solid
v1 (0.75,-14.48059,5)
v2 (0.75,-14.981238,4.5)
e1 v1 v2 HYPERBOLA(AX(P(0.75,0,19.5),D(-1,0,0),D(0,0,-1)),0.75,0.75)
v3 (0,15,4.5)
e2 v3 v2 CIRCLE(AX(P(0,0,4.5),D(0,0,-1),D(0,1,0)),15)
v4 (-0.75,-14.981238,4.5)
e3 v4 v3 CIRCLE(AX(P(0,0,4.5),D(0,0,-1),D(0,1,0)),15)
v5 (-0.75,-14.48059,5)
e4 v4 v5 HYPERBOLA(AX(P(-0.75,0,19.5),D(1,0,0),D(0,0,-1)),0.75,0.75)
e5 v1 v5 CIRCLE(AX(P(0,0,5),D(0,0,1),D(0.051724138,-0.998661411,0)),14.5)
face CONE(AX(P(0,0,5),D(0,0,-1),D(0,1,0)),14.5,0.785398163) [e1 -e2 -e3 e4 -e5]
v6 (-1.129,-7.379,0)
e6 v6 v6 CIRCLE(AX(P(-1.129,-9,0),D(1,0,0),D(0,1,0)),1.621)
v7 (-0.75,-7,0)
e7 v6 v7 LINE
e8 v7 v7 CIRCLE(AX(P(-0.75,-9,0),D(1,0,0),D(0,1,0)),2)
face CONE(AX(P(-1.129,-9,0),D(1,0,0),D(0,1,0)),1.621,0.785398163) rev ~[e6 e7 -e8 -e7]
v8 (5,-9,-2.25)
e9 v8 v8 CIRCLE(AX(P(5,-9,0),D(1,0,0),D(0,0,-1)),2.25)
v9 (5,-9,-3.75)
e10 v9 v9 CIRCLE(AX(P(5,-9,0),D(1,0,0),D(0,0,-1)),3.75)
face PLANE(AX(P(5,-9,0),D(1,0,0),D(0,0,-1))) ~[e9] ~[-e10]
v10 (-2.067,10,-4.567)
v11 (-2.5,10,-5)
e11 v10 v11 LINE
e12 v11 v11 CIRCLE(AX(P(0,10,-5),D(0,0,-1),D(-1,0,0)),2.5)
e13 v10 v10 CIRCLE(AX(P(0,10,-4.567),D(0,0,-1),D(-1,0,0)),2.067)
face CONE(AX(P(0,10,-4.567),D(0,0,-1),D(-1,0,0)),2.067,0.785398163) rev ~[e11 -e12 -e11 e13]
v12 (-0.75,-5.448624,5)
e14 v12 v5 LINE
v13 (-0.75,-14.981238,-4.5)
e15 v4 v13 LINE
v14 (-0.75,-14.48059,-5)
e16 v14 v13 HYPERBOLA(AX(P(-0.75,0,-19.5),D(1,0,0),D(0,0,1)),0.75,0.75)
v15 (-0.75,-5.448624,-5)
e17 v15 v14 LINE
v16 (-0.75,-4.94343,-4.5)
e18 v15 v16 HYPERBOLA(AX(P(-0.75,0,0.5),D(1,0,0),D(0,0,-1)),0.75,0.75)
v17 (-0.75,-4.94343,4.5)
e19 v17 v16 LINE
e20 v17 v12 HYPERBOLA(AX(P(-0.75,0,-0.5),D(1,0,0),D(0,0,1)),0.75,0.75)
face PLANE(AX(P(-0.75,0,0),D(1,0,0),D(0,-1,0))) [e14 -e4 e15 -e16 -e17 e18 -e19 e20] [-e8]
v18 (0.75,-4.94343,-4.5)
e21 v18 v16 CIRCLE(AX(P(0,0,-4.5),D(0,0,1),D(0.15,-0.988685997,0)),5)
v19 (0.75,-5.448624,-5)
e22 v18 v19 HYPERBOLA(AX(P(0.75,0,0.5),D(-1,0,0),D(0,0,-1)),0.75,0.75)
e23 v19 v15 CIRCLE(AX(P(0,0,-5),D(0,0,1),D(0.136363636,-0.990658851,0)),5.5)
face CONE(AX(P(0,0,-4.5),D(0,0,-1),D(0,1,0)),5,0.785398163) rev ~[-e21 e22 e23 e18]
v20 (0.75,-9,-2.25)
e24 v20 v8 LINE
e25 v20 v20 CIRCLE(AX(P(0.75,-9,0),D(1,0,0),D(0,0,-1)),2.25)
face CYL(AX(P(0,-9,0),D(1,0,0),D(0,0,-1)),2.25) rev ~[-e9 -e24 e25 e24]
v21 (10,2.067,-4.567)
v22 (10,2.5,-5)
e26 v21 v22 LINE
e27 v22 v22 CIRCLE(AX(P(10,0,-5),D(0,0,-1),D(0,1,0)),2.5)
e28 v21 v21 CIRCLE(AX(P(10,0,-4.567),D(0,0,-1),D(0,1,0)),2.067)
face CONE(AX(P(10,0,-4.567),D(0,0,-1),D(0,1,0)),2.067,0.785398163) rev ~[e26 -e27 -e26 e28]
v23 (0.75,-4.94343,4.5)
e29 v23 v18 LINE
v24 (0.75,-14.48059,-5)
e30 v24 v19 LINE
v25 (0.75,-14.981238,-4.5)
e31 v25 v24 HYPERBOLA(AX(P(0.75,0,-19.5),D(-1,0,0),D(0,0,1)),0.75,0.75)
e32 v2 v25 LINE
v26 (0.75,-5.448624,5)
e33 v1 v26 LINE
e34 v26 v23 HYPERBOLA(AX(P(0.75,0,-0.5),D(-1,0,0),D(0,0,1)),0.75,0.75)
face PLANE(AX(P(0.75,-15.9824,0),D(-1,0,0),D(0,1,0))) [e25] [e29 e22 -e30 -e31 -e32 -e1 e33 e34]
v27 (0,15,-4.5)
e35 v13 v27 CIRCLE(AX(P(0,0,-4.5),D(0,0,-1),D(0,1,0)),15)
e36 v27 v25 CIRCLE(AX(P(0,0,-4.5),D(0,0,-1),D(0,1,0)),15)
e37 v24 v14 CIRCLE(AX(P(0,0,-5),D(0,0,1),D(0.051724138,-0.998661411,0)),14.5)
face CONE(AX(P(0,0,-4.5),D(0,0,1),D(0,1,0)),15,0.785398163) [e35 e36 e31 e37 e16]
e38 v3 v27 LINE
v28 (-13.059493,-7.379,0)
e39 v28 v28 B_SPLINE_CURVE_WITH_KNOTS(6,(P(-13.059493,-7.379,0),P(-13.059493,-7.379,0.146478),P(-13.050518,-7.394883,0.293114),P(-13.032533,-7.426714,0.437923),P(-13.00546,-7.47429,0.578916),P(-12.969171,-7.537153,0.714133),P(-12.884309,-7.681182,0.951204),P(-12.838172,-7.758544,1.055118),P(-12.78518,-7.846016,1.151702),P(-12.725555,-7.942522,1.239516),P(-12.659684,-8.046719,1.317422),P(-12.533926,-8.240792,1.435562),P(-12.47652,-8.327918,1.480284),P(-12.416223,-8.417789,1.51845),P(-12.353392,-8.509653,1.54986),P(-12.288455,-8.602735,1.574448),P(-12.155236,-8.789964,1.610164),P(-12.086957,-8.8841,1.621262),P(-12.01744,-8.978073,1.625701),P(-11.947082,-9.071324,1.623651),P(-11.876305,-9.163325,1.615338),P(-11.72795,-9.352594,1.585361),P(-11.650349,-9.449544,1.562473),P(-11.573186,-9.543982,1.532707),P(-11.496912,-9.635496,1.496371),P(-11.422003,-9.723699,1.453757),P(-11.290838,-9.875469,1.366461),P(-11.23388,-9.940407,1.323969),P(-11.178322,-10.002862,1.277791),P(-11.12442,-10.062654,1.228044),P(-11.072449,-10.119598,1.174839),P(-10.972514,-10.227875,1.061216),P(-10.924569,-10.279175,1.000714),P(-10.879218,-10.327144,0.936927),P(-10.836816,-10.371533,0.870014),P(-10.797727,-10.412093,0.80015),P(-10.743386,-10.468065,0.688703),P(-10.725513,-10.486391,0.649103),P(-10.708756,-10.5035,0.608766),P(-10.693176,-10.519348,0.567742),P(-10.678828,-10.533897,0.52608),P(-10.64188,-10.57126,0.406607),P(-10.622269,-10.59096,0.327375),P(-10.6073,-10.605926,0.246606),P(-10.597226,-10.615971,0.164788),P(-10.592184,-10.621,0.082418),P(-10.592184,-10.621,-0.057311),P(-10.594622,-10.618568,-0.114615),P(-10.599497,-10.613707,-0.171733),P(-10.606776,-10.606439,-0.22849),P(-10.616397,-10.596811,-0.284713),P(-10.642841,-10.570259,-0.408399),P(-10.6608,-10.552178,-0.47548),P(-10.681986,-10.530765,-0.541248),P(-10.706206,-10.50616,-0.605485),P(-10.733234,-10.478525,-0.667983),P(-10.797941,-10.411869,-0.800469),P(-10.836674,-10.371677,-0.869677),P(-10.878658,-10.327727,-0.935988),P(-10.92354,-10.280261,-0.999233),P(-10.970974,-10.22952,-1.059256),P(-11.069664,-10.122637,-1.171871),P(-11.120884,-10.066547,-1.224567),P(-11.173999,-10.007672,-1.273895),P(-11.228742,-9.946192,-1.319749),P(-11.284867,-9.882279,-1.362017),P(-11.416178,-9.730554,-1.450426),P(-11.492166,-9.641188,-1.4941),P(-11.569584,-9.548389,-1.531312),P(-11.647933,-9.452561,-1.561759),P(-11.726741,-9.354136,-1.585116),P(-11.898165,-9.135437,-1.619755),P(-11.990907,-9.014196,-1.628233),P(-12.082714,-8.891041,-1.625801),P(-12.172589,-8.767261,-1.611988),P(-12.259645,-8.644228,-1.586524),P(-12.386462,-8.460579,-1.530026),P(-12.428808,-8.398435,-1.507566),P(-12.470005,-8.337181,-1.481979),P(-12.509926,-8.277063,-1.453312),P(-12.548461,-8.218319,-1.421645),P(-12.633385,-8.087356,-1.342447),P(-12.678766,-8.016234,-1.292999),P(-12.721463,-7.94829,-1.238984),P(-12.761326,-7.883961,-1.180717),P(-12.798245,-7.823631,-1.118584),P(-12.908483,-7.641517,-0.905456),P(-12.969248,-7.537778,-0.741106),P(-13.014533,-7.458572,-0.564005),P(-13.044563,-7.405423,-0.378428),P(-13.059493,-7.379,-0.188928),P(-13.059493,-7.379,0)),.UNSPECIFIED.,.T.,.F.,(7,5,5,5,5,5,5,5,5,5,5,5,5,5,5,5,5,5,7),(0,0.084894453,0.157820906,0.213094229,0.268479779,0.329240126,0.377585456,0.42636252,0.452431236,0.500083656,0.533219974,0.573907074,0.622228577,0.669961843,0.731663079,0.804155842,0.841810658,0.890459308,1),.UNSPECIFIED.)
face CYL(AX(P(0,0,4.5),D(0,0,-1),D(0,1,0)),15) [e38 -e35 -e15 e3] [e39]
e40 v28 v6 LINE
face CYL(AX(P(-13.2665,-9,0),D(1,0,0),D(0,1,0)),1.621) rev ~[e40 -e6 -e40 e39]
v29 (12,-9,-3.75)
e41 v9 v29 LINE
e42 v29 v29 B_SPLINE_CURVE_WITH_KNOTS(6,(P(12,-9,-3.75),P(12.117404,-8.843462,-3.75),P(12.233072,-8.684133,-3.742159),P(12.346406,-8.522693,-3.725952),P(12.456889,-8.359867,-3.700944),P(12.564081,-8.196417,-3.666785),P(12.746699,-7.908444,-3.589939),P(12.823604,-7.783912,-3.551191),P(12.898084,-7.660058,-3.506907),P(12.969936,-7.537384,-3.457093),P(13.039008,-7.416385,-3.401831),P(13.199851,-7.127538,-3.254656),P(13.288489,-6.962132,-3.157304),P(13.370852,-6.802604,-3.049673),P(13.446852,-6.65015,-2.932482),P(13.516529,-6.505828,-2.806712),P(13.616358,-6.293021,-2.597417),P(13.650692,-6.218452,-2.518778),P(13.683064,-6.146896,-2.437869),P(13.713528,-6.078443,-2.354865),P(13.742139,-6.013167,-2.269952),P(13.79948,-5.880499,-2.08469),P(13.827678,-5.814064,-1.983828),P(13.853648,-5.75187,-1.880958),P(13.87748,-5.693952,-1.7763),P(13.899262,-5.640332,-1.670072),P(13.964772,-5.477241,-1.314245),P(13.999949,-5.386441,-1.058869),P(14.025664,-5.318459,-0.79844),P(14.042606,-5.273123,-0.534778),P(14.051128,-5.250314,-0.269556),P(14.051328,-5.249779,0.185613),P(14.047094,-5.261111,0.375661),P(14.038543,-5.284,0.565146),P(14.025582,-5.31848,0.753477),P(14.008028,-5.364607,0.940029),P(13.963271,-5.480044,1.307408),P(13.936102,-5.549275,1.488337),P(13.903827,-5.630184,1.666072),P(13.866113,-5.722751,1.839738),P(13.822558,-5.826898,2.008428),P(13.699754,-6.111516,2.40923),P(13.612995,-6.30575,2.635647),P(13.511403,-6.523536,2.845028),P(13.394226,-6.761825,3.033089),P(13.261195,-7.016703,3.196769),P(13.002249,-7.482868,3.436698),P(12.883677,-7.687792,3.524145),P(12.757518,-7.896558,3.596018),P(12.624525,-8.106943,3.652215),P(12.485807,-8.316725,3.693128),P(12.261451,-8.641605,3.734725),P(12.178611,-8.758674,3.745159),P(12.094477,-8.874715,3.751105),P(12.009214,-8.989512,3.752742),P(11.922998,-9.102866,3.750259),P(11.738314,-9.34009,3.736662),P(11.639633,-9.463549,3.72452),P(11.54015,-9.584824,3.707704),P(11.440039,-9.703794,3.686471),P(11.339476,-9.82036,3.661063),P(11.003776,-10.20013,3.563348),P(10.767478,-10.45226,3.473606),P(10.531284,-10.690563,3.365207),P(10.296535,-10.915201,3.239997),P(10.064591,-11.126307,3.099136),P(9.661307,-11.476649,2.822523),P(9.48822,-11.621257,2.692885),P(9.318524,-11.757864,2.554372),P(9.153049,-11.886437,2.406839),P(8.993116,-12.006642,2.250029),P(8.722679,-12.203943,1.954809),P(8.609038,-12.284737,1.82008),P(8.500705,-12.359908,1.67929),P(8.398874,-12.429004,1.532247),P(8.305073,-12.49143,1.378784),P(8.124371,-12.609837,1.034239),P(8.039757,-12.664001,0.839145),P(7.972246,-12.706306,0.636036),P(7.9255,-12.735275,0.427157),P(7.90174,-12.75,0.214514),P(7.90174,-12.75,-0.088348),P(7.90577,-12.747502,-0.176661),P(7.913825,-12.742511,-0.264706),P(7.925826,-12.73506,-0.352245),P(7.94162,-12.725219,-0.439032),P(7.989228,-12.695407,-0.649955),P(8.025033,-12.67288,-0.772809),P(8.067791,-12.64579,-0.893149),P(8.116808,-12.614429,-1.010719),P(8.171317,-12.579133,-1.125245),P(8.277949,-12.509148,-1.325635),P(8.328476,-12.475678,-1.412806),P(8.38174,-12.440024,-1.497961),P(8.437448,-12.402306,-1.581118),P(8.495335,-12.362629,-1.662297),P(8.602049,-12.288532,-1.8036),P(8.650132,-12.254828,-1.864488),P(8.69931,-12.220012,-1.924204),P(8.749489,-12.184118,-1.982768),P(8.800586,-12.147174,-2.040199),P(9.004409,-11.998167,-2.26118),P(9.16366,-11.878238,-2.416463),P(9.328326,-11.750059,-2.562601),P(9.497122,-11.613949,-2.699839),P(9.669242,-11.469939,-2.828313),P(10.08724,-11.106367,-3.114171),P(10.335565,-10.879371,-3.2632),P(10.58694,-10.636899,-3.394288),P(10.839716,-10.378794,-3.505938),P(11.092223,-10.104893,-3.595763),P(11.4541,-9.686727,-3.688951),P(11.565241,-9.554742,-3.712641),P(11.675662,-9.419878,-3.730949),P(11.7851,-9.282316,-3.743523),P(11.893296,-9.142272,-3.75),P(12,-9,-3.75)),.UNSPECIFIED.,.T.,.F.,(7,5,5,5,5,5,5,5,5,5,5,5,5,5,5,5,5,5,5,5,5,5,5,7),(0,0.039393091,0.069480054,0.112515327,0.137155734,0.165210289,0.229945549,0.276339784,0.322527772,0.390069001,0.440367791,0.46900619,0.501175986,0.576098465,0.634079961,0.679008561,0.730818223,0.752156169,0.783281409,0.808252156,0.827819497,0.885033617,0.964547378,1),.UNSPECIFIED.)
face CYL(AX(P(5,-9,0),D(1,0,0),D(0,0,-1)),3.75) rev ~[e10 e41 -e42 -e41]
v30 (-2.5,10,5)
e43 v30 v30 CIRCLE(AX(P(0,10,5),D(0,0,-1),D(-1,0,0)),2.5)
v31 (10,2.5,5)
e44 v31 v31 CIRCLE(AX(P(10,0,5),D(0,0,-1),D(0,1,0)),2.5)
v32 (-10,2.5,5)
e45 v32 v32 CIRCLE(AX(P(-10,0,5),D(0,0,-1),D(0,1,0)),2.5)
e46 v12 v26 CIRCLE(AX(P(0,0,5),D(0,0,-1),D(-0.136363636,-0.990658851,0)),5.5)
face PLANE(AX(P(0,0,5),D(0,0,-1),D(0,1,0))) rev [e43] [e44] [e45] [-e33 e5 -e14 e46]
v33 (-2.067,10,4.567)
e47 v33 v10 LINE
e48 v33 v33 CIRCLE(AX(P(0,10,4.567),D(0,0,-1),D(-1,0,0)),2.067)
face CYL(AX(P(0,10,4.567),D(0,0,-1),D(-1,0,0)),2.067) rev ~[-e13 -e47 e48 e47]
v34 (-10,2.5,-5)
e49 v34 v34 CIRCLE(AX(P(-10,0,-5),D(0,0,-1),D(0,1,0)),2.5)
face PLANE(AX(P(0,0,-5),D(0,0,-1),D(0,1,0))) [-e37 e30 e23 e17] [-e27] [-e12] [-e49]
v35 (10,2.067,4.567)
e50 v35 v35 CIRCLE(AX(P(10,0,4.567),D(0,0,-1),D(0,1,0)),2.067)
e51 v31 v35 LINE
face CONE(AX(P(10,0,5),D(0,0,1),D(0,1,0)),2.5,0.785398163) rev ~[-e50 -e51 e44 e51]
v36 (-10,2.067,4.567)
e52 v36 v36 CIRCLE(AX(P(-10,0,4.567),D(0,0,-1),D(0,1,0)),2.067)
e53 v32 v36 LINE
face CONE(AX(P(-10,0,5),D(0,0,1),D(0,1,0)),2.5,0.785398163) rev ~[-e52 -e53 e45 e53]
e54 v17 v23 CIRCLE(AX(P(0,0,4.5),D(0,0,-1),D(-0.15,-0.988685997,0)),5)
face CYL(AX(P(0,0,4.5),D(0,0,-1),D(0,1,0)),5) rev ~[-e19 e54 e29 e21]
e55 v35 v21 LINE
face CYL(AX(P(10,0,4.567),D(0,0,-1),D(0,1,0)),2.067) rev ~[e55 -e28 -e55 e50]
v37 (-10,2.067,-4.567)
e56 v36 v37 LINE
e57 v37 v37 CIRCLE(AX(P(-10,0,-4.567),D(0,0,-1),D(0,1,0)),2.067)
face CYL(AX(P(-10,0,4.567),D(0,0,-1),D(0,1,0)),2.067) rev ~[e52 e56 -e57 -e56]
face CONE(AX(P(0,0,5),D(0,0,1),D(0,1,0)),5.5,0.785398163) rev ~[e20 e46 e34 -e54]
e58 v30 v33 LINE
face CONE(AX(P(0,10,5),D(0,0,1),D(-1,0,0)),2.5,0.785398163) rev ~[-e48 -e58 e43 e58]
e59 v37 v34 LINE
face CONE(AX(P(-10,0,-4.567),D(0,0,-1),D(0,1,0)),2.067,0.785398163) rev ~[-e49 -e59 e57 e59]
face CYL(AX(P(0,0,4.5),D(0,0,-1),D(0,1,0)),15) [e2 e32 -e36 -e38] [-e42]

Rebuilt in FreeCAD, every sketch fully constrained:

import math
import FreeCAD as App
import Part
import Sketcher

V = App.Vector
Q = App.Units.Quantity


def add_polygon(sketch, points):
    """Adds a closed chain of lines whose ends are joined by coincident constraints."""
    first, n = sketch.GeometryCount, len(points)
    for a, b in zip(points, points[1:] + points[:1]):
        sketch.addGeometry(Part.LineSegment(App.Vector(*a, 0), App.Vector(*b, 0)), False)
    for i in range(n):
        sketch.addConstraint(Sketcher.Constraint("Coincident", first + i, 2, first + (i + 1) % n, 1))

doc = App.newDocument("Part")
body = doc.addObject("PartDesign::Body", "Body")

# Sketch on YZ plane
sketch1 = body.newObject("Sketcher::SketchObject", "Sketch")
sketch1.AttachmentSupport = (doc.getObject("YZ_Plane"), [""])
sketch1.MapMode = "FlatFace"
add_polygon(sketch1, [(0, 5), (0, -5), (14.5, -5), (15, -4.5), (15, 4.5), (14.5, 5)])  # lines 0-5
sketch1.addConstraint(Sketcher.Constraint("Vertical", 0))
sketch1.addConstraint(Sketcher.Constraint("Horizontal", 1))
sketch1.addConstraint(Sketcher.Constraint("Vertical", 3))
sketch1.addConstraint(Sketcher.Constraint("Horizontal", 5))
sketch1.addConstraint(Sketcher.Constraint("Symmetric", 0, 2, 5, 2, -1, 1))
sketch1.addConstraint(Sketcher.Constraint("Perpendicular", 2, 4))
sketch1.addConstraint(Sketcher.Constraint("Vertical", 1, 2, 4, 2))
sketch1.addConstraint(Sketcher.Constraint("Equal", 2, 4))
sketch1.addConstraint(Sketcher.Constraint("DistanceY", 0, 2, 0, 1, Q("10 mm")))
sketch1.addConstraint(Sketcher.Constraint("DistanceY", 3, 1, 3, 2, Q("9 mm")))
sketch1.addConstraint(Sketcher.Constraint("DistanceX", 1, 1, 1, 2, Q("14.5 mm")))
revolution = body.newObject("PartDesign::Revolution", "Revolution")
revolution.Profile = sketch1
revolution.ReferenceAxis = (sketch1, ["V_Axis"])
revolution.Angle = 360

# Sketch on YZ plane
sketch2 = body.newObject("Sketcher::SketchObject", "Sketch001")
sketch2.AttachmentSupport = (doc.getObject("YZ_Plane"), [""])
sketch2.MapMode = "FlatFace"
add_polygon(sketch2, [(0, 5), (0, -5), (5.5, -5), (5, -4.5), (5, 4.5), (5.5, 5)])  # lines 0-5
sketch2.addConstraint(Sketcher.Constraint("Vertical", 0))
sketch2.addConstraint(Sketcher.Constraint("Horizontal", 1))
sketch2.addConstraint(Sketcher.Constraint("Vertical", 3))
sketch2.addConstraint(Sketcher.Constraint("Horizontal", 5))
sketch2.addConstraint(Sketcher.Constraint("Symmetric", 0, 2, 5, 2, -1, 1))
sketch2.addConstraint(Sketcher.Constraint("Perpendicular", 2, 4))
sketch2.addConstraint(Sketcher.Constraint("Vertical", 1, 2, 4, 2))
sketch2.addConstraint(Sketcher.Constraint("Equal", 2, 4))
sketch2.addConstraint(Sketcher.Constraint("DistanceY", 0, 2, 0, 1, Q("10 mm")))
sketch2.addConstraint(Sketcher.Constraint("DistanceY", 3, 1, 3, 2, Q("9 mm")))
sketch2.addConstraint(Sketcher.Constraint("DistanceX", 1, 1, 1, 2, Q("5.5 mm")))
groove = body.newObject("PartDesign::Groove", "Groove")
groove.Profile = sketch2
groove.ReferenceAxis = (sketch2, ["V_Axis"])
groove.Angle = 360

# Sketch on XY plane
sketch3 = body.newObject("Sketcher::SketchObject", "Sketch002")
sketch3.AttachmentSupport = (doc.getObject("XY_Plane"), [""])
sketch3.MapMode = "FlatFace"
sketch3.addGeometry(Part.LineSegment(V(-0.8, 0, 0), V(-0.8, -16, 0)), False)
sketch3.addGeometry(Part.ArcOfCircle(Part.Circle(V(0, 0, 0), V(0, 0, 1), 16), math.radians(-92.69), math.radians(-87.31)), False)
sketch3.addGeometry(Part.LineSegment(V(0.8, -16, 0), V(0.8, 0, 0)), False)
sketch3.addGeometry(Part.LineSegment(V(0.8, 0, 0), V(-0.8, 0, 0)), False)
sketch3.addConstraint(Sketcher.Constraint("Coincident", 0, 2, 1, 1))
sketch3.addConstraint(Sketcher.Constraint("Coincident", 1, 2, 2, 1))
sketch3.addConstraint(Sketcher.Constraint("Coincident", 2, 2, 3, 1))
sketch3.addConstraint(Sketcher.Constraint("Coincident", 3, 2, 0, 1))
sketch3.addConstraint(Sketcher.Constraint("Vertical", 0))
sketch3.addConstraint(Sketcher.Constraint("Vertical", 2))
sketch3.addConstraint(Sketcher.Constraint("Horizontal", 3))
sketch3.addConstraint(Sketcher.Constraint("Coincident", 1, 3, -1, 1))
sketch3.addConstraint(Sketcher.Constraint("Symmetric", 2, 2, 3, 2, -1, 1))
sketch3.addConstraint(Sketcher.Constraint("Radius", 1, Q("16 mm")))
sketch3.addConstraint(Sketcher.Constraint("DistanceX", 3, 2, 3, 1, Q("1.5 mm")))
pocket1 = body.newObject("PartDesign::Pocket", "Pocket")
pocket1.Profile = sketch3
pocket1.Length = 10
pocket1.Midplane = True

# Sketch on YZ plane
sketch4 = body.newObject("Sketcher::SketchObject", "Sketch003")
sketch4.AttachmentSupport = (doc.getObject("YZ_Plane"), [""])
sketch4.MapMode = "FlatFace"
sketch4.AttachmentOffset = App.Placement(V(0, 0, 10), App.Rotation())
add_polygon(sketch4, [(0, 5), (0, -5), (2.5, -5), (2.1, -4.6), (2.1, 4.6), (2.5, 5)])  # lines 0-5
sketch4.addConstraint(Sketcher.Constraint("Vertical", 0))
sketch4.addConstraint(Sketcher.Constraint("Horizontal", 1))
sketch4.addConstraint(Sketcher.Constraint("Vertical", 3))
sketch4.addConstraint(Sketcher.Constraint("Horizontal", 5))
sketch4.addConstraint(Sketcher.Constraint("Symmetric", 0, 2, 5, 2, -1, 1))
sketch4.addConstraint(Sketcher.Constraint("Perpendicular", 2, 4))
sketch4.addConstraint(Sketcher.Constraint("Vertical", 1, 2, 4, 2))
sketch4.addConstraint(Sketcher.Constraint("Equal", 2, 4))
sketch4.addConstraint(Sketcher.Constraint("DistanceY", 0, 2, 0, 1, Q("10 mm")))
sketch4.addConstraint(Sketcher.Constraint("DistanceX", 1, 1, 1, 2, Q("2.5 mm")))
sketch4.addConstraint(Sketcher.Constraint("DistanceY", 3, 1, 3, 2, Q("9.134 mm")))
groove2 = body.newObject("PartDesign::Groove", "Groove001")
groove2.Profile = sketch4
groove2.ReferenceAxis = (sketch4, ["V_Axis"])
groove2.Angle = 360

# Sketch on YZ plane
sketch5 = body.newObject("Sketcher::SketchObject", "Sketch004")
sketch5.AttachmentSupport = (doc.getObject("YZ_Plane"), [""])
sketch5.MapMode = "FlatFace"
sketch5.AttachmentOffset = App.Placement(V(0, 0, -10), App.Rotation())
add_polygon(sketch5, [(0, 5), (0, -5), (2.5, -5), (2.1, -4.6), (2.1, 4.6), (2.5, 5)])  # lines 0-5
sketch5.addConstraint(Sketcher.Constraint("Vertical", 0))
sketch5.addConstraint(Sketcher.Constraint("Horizontal", 1))
sketch5.addConstraint(Sketcher.Constraint("Vertical", 3))
sketch5.addConstraint(Sketcher.Constraint("Horizontal", 5))
sketch5.addConstraint(Sketcher.Constraint("Symmetric", 0, 2, 5, 2, -1, 1))
sketch5.addConstraint(Sketcher.Constraint("Perpendicular", 2, 4))
sketch5.addConstraint(Sketcher.Constraint("Vertical", 1, 2, 4, 2))
sketch5.addConstraint(Sketcher.Constraint("Equal", 2, 4))
sketch5.addConstraint(Sketcher.Constraint("DistanceY", 0, 2, 0, 1, Q("10 mm")))
sketch5.addConstraint(Sketcher.Constraint("DistanceX", 1, 1, 1, 2, Q("2.5 mm")))
sketch5.addConstraint(Sketcher.Constraint("DistanceY", 3, 1, 3, 2, Q("9.134 mm")))
groove3 = body.newObject("PartDesign::Groove", "Groove002")
groove3.Profile = sketch5
groove3.ReferenceAxis = (sketch5, ["V_Axis"])
groove3.Angle = 360

# Sketch on XZ plane
sketch6 = body.newObject("Sketcher::SketchObject", "Sketch005")
sketch6.AttachmentSupport = (doc.getObject("XZ_Plane"), [""])
sketch6.MapMode = "FlatFace"
sketch6.AttachmentOffset = App.Placement(V(0, 0, -10), App.Rotation())
add_polygon(sketch6, [(0, 5), (0, -5), (-2.5, -5), (-2.1, -4.6), (-2.1, 4.6), (-2.5, 5)])  # lines 0-5
sketch6.addConstraint(Sketcher.Constraint("Vertical", 0))
sketch6.addConstraint(Sketcher.Constraint("Horizontal", 1))
sketch6.addConstraint(Sketcher.Constraint("Vertical", 3))
sketch6.addConstraint(Sketcher.Constraint("Horizontal", 5))
sketch6.addConstraint(Sketcher.Constraint("Symmetric", 0, 2, 5, 2, -1, 1))
sketch6.addConstraint(Sketcher.Constraint("Perpendicular", 2, 4))
sketch6.addConstraint(Sketcher.Constraint("Vertical", 1, 2, 4, 2))
sketch6.addConstraint(Sketcher.Constraint("Equal", 2, 4))
sketch6.addConstraint(Sketcher.Constraint("DistanceY", 0, 2, 0, 1, Q("10 mm")))
sketch6.addConstraint(Sketcher.Constraint("DistanceX", 1, 2, 1, 1, Q("2.5 mm")))
sketch6.addConstraint(Sketcher.Constraint("DistanceY", 3, 1, 3, 2, Q("9.134 mm")))
groove4 = body.newObject("PartDesign::Groove", "Groove003")
groove4.Profile = sketch6
groove4.ReferenceAxis = (sketch6, ["V_Axis"])
groove4.Angle = 360

# Sketch on XZ plane
sketch7 = body.newObject("Sketcher::SketchObject", "Sketch006")
sketch7.AttachmentSupport = (doc.getObject("XZ_Plane"), [""])
sketch7.MapMode = "FlatFace"
sketch7.AttachmentOffset = App.Placement(V(0, 0, 9), App.Rotation())
add_polygon(sketch7, [(0, 0), (15, 0), (15, -3.8), (5, -3.8), (5, -2.2), (0, -2.2)])  # lines 0-5
sketch7.addConstraint(Sketcher.Constraint("Horizontal", 0))
sketch7.addConstraint(Sketcher.Constraint("Vertical", 1))
sketch7.addConstraint(Sketcher.Constraint("Horizontal", 2))
sketch7.addConstraint(Sketcher.Constraint("Vertical", 3))
sketch7.addConstraint(Sketcher.Constraint("Horizontal", 4))
sketch7.addConstraint(Sketcher.Constraint("Vertical", 5))
sketch7.addConstraint(Sketcher.Constraint("Coincident", 5, 2, -1, 1))
sketch7.addConstraint(Sketcher.Constraint("DistanceX", 0, 1, 0, 2, Q("15 mm")))
sketch7.addConstraint(Sketcher.Constraint("DistanceX", 2, 2, 2, 1, Q("10 mm")))
sketch7.addConstraint(Sketcher.Constraint("DistanceY", 3, 1, 3, 2, Q("1.5 mm")))
sketch7.addConstraint(Sketcher.Constraint("DistanceY", 1, 2, 1, 1, Q("3.75 mm")))
groove5 = body.newObject("PartDesign::Groove", "Groove004")
groove5.Profile = sketch7
groove5.ReferenceAxis = (sketch7, ["H_Axis"])
groove5.Angle = 360

# Sketch on XY plane
sketch8 = body.newObject("Sketcher::SketchObject", "Sketch007")
sketch8.AttachmentSupport = (doc.getObject("XY_Plane"), [""])
sketch8.MapMode = "FlatFace"
add_polygon(sketch8, [(-13.3, -9), (-0.8, -9), (-0.8, -7), (-1.1, -7.4), (-13.3, -7.4)])  # lines 0-4
sketch8.addGeometry(Part.LineSegment(V(-13.3, -9, 0), V(-0.8, -9, 0)), True)  # axis
sketch8.addConstraint(Sketcher.Constraint("Horizontal", 0))
sketch8.addConstraint(Sketcher.Constraint("Vertical", 1))
sketch8.addConstraint(Sketcher.Constraint("Horizontal", 3))
sketch8.addConstraint(Sketcher.Constraint("Vertical", 4))
sketch8.addConstraint(Sketcher.Constraint("Horizontal", 5))
sketch8.addConstraint(Sketcher.Constraint("Coincident", 5, 1, 4, 2))
sketch8.addConstraint(Sketcher.Constraint("Vertical", 1, 2, 5, 2))
sketch8.addConstraint(Sketcher.Constraint("DistanceY", 1, 1, 1, 2, Q("2 mm")))
sketch8.addConstraint(Sketcher.Constraint("Angle", 2, Q("-135 deg")))
sketch8.addConstraint(Sketcher.Constraint("DistanceY", 0, 2, -1, 1, Q("9 mm")))
sketch8.addConstraint(Sketcher.Constraint("DistanceY", 4, 2, 4, 1, Q("1.621 mm")))
sketch8.addConstraint(Sketcher.Constraint("DistanceX", 0, 2, -1, 1, Q("0.75 mm")))
sketch8.addConstraint(Sketcher.Constraint("DistanceX", 0, 1, 0, 2, Q("12.5165 mm")))
groove6 = body.newObject("PartDesign::Groove", "Groove005")
groove6.Profile = sketch8
groove6.ReferenceAxis = (sketch8, ["Axis0"])
groove6.Angle = 360

doc.recompute()
